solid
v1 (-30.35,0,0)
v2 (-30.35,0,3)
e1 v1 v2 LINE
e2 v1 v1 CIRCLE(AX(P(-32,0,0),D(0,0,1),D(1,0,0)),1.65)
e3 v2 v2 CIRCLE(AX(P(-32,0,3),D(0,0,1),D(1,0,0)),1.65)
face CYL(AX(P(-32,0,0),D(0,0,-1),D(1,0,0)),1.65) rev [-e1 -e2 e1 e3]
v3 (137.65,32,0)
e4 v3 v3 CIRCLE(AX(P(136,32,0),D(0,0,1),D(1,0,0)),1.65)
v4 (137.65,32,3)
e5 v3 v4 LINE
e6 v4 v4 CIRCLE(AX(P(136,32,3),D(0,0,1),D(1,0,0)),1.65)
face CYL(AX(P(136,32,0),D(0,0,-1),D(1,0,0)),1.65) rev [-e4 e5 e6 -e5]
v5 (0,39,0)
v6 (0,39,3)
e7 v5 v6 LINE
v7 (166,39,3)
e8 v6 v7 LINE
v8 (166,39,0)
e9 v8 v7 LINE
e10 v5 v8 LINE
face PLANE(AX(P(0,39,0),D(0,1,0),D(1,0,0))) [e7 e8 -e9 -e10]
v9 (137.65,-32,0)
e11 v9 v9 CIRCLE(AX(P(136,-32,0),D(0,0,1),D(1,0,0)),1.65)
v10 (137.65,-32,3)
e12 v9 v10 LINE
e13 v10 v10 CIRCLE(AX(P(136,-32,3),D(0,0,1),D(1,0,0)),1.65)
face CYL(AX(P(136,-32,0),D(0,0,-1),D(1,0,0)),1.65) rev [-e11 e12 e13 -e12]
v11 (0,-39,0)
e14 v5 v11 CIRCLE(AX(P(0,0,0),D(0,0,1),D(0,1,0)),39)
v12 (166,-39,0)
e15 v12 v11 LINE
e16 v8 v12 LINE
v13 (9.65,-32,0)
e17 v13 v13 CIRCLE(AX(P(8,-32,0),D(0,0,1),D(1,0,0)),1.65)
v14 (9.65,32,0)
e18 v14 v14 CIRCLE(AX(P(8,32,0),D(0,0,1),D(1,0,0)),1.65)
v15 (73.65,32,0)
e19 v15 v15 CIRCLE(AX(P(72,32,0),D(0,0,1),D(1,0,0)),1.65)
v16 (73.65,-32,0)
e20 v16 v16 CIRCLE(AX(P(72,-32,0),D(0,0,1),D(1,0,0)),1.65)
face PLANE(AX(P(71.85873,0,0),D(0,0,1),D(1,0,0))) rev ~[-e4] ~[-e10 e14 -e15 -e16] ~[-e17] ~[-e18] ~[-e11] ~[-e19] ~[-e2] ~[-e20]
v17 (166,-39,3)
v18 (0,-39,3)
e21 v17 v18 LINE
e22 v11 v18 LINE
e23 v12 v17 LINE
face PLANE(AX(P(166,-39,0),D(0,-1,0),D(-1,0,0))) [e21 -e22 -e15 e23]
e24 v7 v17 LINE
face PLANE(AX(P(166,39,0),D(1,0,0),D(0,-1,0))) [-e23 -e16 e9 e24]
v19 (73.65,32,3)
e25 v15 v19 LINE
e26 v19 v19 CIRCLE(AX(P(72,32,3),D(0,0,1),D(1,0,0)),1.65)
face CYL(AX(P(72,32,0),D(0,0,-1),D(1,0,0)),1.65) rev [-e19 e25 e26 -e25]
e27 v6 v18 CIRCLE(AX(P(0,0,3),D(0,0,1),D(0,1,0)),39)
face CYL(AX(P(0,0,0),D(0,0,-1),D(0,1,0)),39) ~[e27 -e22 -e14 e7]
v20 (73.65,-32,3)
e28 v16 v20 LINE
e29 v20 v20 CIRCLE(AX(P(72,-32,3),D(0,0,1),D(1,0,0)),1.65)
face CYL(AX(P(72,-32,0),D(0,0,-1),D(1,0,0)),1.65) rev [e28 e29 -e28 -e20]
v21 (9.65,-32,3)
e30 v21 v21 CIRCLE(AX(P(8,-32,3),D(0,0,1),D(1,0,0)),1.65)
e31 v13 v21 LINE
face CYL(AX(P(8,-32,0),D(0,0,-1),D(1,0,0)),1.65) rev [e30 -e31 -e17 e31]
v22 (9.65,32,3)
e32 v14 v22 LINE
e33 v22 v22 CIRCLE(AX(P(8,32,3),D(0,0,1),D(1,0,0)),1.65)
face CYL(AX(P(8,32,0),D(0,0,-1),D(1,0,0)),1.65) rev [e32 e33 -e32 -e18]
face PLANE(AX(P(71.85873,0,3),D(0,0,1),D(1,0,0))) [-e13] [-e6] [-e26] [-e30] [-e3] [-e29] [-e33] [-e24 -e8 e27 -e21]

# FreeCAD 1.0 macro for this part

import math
import FreeCAD as App
import Part
import Sketcher
from FreeCAD import Vector
Q = App.Units.Quantity

doc = App.newDocument("Part")
body = doc.addObject("PartDesign::Body", "Body")

# Sketch on XY plane
sketch1 = doc.addObject("Sketcher::SketchObject", "Sketch")
body.addObject(sketch1)
sketch1.AttachmentSupport = (doc.XY_Plane, [""])
sketch1.MapMode = "FlatFace"
sketch1.addGeometry([
    Part.ArcOfCircle(Part.Circle(Vector(0, 0, 0), Vector(0, 0, 1), 39), math.radians(90), math.radians(270)),  # 0
    Part.LineSegment(Vector(0, -39, 0), Vector(166, -39, 0)),  # 1
    Part.LineSegment(Vector(166, -39, 0), Vector(166, 39, 0)),  # 2
    Part.LineSegment(Vector(166, 39, 0), Vector(0, 39, 0)),  # 3
    Part.Circle(Vector(8, -32, 0), Vector(0, 0, 1), 1.6),  # 4
    Part.Circle(Vector(72, -32, 0), Vector(0, 0, 1), 1.6),  # 5
    Part.Circle(Vector(136, -32, 0), Vector(0, 0, 1), 1.6),  # 6
    Part.Circle(Vector(-32, 0, 0), Vector(0, 0, 1), 1.6),  # 7
    Part.Circle(Vector(8, 32, 0), Vector(0, 0, 1), 1.6),  # 8
    Part.Circle(Vector(72, 32, 0), Vector(0, 0, 1), 1.6),  # 9
    Part.Circle(Vector(136, 32, 0), Vector(0, 0, 1), 1.6),  # 10
], False)
sketch1.addConstraint([
    Sketcher.Constraint("Tangent", 0, 2, 1, 1),
    Sketcher.Constraint("Coincident", 1, 2, 2, 1),
    Sketcher.Constraint("Coincident", 2, 2, 3, 1),
    Sketcher.Constraint("Tangent", 3, 2, 0, 1),
    Sketcher.Constraint("Horizontal", 1),
    Sketcher.Constraint("Vertical", 2),
    Sketcher.Constraint("Horizontal", 3),
    Sketcher.Constraint("Coincident", 0, 3, -1, 1),
    Sketcher.Constraint("Equal", 4, 5),
    Sketcher.Constraint("Equal", 5, 6),
    Sketcher.Constraint("Equal", 6, 7),
    Sketcher.Constraint("Equal", 7, 8),
    Sketcher.Constraint("Equal", 8, 9),
    Sketcher.Constraint("Equal", 9, 10),
    Sketcher.Constraint("Symmetric", 4, 3, 8, 3, -1),
    Sketcher.Constraint("Symmetric", 5, 3, 9, 3, -1),
    Sketcher.Constraint("Symmetric", 6, 3, 10, 3, -1),
    Sketcher.Constraint("PointOnObject", 7, 3, -1),
    Sketcher.Constraint("Horizontal", 4, 3, 5, 3),
    Sketcher.Constraint("Horizontal", 5, 3, 6, 3),
    Sketcher.Constraint("Radius", 0, Q("39 mm")),
    Sketcher.Constraint("Diameter", 4, Q("3.3 mm")),
    Sketcher.Constraint("DistanceX", 1, 1, 1, 2, Q("166 mm")),
    Sketcher.Constraint("DistanceX", -1, 1, 4, 3, Q("8 mm")),
    Sketcher.Constraint("DistanceY", 4, 3, -1, 1, Q("32 mm")),
    Sketcher.Constraint("DistanceX", -1, 1, 5, 3, Q("72 mm")),
    Sketcher.Constraint("DistanceX", -1, 1, 6, 3, Q("136 mm")),
    Sketcher.Constraint("DistanceX", 7, 3, -1, 1, Q("32 mm")),
])
pad1 = doc.addObject("PartDesign::Pad", "Pad")
body.addObject(pad1)
pad1.Profile = sketch1
pad1.Length = 3

doc.recompute()
